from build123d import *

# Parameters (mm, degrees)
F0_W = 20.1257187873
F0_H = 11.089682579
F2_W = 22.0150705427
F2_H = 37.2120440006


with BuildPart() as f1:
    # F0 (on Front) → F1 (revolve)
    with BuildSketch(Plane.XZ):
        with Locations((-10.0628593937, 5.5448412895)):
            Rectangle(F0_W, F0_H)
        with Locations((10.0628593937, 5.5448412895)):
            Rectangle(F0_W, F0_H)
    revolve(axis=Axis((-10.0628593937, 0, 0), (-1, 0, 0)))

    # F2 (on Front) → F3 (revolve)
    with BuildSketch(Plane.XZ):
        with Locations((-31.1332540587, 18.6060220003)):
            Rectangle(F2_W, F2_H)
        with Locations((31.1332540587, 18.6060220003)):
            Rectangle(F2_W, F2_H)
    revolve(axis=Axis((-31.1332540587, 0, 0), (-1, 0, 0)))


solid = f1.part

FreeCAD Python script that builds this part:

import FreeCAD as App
import Part
import Sketcher
from FreeCAD import Vector
Q = App.Units.Quantity

doc = App.newDocument("Part")
body = doc.addObject("PartDesign::Body", "Body")

# Sketch on XZ plane
sketch1 = body.newObject("Sketcher::SketchObject", "Sketch")
sketch1.AttachmentSupport = (doc.getObject("XZ_Plane"), [""])
sketch1.MapMode = "FlatFace"
sketch1.addGeometry([
    Part.LineSegment(Vector(-20, 11, 0), Vector(-20, 0, 0)),
    Part.LineSegment(Vector(-20, 0, 0), Vector(20, 0, 0)),
    Part.LineSegment(Vector(20, 0, 0), Vector(20, 11, 0)),
    Part.LineSegment(Vector(20, 11, 0), Vector(-20, 11, 0)),
], False)
sketch1.addConstraint([
    Sketcher.Constraint("Coincident", 0, 2, 1, 1),
    Sketcher.Constraint("Coincident", 1, 2, 2, 1),
    Sketcher.Constraint("Coincident", 2, 2, 3, 1),
    Sketcher.Constraint("Coincident", 3, 2, 0, 1),
    Sketcher.Constraint("Vertical", 0),
    Sketcher.Constraint("Horizontal", 1),
    Sketcher.Constraint("Vertical", 2),
    Sketcher.Constraint("Horizontal", 3),
    Sketcher.Constraint("Symmetric", 0, 2, 1, 2, -1, 1),
    Sketcher.Constraint("DistanceX", 1, 1, 1, 2, Q("40.251438 mm")),
    Sketcher.Constraint("DistanceY", 0, 2, 0, 1, Q("11.089683 mm")),
])
revolution = body.newObject("PartDesign::Revolution", "Revolution")
revolution.Profile = sketch1
revolution.ReferenceAxis = (sketch1, ["H_Axis"])
revolution.Angle = 360

# Sketch on XZ plane
sketch2 = body.newObject("Sketcher::SketchObject", "Sketch001")
sketch2.AttachmentSupport = (doc.getObject("XZ_Plane"), [""])
sketch2.MapMode = "FlatFace"
sketch2.addGeometry([
    Part.LineSegment(Vector(-42, 37, 0), Vector(-42, 0, 0)),  # 0
    Part.LineSegment(Vector(-42, 0, 0), Vector(-20, 0, 0)),  # 1
    Part.LineSegment(Vector(-20, 0, 0), Vector(-20, 37, 0)),  # 2
    Part.LineSegment(Vector(-20, 37, 0), Vector(-42, 37, 0)),  # 3
    Part.LineSegment(Vector(20, 37, 0), Vector(20, 0, 0)),  # 4
    Part.LineSegment(Vector(20, 0, 0), Vector(42, 0, 0)),  # 5
    Part.LineSegment(Vector(42, 0, 0), Vector(42, 37, 0)),  # 6
    Part.LineSegment(Vector(42, 37, 0), Vector(20, 37, 0)),  # 7
], False)
sketch2.addConstraint([
    Sketcher.Constraint("Coincident", 0, 2, 1, 1),
    Sketcher.Constraint("Coincident", 1, 2, 2, 1),
    Sketcher.Constraint("Coincident", 2, 2, 3, 1),
    Sketcher.Constraint("Coincident", 3, 2, 0, 1),
    Sketcher.Constraint("Coincident", 4, 2, 5, 1),
    Sketcher.Constraint("Coincident", 5, 2, 6, 1),
    Sketcher.Constraint("Coincident", 6, 2, 7, 1),
    Sketcher.Constraint("Coincident", 7, 2, 4, 1),
    Sketcher.Constraint("Vertical", 0),
    Sketcher.Constraint("Horizontal", 1),
    Sketcher.Constraint("Vertical", 2),
    Sketcher.Constraint("Horizontal", 3),
    Sketcher.Constraint("Vertical", 4),
    Sketcher.Constraint("Horizontal", 5),
    Sketcher.Constraint("Vertical", 6),
    Sketcher.Constraint("Horizontal", 7),
    Sketcher.Constraint("Symmetric", 1, 2, 4, 2, -1, 1),
    Sketcher.Constraint("Symmetric", 0, 2, 5, 2, -2),
    Sketcher.Constraint("Horizontal", 3, 2, 6, 2),
    Sketcher.Constraint("DistanceX", 1, 1, 1, 2, Q("22.015071 mm")),
    Sketcher.Constraint("DistanceY", 0, 2, 0, 1, Q("37.212044 mm")),
    Sketcher.Constraint("DistanceX", 0, 2, -1, 1, Q("42.140789 mm")),
])
revolution2 = body.newObject("PartDesign::Revolution", "Revolution001")
revolution2.Profile = sketch2
revolution2.ReferenceAxis = (sketch2, ["H_Axis"])
revolution2.Angle = 360

doc.recompute()
